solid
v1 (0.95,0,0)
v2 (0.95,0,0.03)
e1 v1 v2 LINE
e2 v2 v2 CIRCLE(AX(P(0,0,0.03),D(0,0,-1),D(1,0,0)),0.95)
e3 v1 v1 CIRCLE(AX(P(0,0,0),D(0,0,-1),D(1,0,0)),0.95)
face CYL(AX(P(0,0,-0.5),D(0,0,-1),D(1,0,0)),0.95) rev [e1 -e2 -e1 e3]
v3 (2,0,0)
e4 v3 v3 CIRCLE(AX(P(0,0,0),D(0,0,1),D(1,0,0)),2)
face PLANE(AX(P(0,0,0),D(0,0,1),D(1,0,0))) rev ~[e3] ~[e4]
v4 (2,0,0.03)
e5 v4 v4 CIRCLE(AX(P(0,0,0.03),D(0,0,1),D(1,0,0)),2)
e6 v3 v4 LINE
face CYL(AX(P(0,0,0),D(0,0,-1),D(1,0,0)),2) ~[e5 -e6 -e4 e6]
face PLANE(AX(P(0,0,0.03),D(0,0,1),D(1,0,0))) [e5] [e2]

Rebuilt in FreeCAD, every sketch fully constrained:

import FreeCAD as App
import Part
import Sketcher
from FreeCAD import Vector
Q = App.Units.Quantity

doc = App.newDocument("Part")
body = doc.addObject("PartDesign::Body", "Body")

# Sketch on XY plane
sketch1 = body.newObject("Sketcher::SketchObject", "Sketch")
sketch1.AttachmentSupport = (doc.getObject("XY_Plane"), [""])
sketch1.MapMode = "FlatFace"
sketch1.AttachmentOffset = App.Placement(Vector(0, 0, -0.5), App.Rotation())
sketch1.addGeometry(Part.Circle(Vector(0, 0, 0), Vector(0, 0, 1), 0.95), False)
sketch1.addConstraint([
    Sketcher.Constraint("Coincident", 0, 3, -1, 1),
    Sketcher.Constraint("Diameter", 0, Q("1.9 mm")),
])
pad1 = body.newObject("PartDesign::Pad", "Pad")
pad1.Profile = sketch1
pad1.Length = 1
body2 = doc.addObject("PartDesign::Body", "Body001")

# Sketch on XY plane
sketch2 = body2.newObject("Sketcher::SketchObject", "Sketch001")
sketch2.AttachmentSupport = (doc.getObject("XY_Plane001"), [""])
sketch2.MapMode = "FlatFace"
sketch2.addGeometry(Part.Circle(Vector(0, 0, 0), Vector(0, 0, 1), 2), False)
sketch2.addConstraint([
    Sketcher.Constraint("Coincident", 0, 3, -1, 1),
    Sketcher.Constraint("Diameter", 0, Q("4 mm")),
])
pad2 = body2.newObject("PartDesign::Pad", "Pad001")
pad2.Profile = sketch2
pad2.Length = 0.03
doc.recompute()

boolean = body2.newObject("PartDesign::Boolean", "Boolean")
boolean.Type = "Cut"
boolean.addObjects([body])

doc.recompute()
